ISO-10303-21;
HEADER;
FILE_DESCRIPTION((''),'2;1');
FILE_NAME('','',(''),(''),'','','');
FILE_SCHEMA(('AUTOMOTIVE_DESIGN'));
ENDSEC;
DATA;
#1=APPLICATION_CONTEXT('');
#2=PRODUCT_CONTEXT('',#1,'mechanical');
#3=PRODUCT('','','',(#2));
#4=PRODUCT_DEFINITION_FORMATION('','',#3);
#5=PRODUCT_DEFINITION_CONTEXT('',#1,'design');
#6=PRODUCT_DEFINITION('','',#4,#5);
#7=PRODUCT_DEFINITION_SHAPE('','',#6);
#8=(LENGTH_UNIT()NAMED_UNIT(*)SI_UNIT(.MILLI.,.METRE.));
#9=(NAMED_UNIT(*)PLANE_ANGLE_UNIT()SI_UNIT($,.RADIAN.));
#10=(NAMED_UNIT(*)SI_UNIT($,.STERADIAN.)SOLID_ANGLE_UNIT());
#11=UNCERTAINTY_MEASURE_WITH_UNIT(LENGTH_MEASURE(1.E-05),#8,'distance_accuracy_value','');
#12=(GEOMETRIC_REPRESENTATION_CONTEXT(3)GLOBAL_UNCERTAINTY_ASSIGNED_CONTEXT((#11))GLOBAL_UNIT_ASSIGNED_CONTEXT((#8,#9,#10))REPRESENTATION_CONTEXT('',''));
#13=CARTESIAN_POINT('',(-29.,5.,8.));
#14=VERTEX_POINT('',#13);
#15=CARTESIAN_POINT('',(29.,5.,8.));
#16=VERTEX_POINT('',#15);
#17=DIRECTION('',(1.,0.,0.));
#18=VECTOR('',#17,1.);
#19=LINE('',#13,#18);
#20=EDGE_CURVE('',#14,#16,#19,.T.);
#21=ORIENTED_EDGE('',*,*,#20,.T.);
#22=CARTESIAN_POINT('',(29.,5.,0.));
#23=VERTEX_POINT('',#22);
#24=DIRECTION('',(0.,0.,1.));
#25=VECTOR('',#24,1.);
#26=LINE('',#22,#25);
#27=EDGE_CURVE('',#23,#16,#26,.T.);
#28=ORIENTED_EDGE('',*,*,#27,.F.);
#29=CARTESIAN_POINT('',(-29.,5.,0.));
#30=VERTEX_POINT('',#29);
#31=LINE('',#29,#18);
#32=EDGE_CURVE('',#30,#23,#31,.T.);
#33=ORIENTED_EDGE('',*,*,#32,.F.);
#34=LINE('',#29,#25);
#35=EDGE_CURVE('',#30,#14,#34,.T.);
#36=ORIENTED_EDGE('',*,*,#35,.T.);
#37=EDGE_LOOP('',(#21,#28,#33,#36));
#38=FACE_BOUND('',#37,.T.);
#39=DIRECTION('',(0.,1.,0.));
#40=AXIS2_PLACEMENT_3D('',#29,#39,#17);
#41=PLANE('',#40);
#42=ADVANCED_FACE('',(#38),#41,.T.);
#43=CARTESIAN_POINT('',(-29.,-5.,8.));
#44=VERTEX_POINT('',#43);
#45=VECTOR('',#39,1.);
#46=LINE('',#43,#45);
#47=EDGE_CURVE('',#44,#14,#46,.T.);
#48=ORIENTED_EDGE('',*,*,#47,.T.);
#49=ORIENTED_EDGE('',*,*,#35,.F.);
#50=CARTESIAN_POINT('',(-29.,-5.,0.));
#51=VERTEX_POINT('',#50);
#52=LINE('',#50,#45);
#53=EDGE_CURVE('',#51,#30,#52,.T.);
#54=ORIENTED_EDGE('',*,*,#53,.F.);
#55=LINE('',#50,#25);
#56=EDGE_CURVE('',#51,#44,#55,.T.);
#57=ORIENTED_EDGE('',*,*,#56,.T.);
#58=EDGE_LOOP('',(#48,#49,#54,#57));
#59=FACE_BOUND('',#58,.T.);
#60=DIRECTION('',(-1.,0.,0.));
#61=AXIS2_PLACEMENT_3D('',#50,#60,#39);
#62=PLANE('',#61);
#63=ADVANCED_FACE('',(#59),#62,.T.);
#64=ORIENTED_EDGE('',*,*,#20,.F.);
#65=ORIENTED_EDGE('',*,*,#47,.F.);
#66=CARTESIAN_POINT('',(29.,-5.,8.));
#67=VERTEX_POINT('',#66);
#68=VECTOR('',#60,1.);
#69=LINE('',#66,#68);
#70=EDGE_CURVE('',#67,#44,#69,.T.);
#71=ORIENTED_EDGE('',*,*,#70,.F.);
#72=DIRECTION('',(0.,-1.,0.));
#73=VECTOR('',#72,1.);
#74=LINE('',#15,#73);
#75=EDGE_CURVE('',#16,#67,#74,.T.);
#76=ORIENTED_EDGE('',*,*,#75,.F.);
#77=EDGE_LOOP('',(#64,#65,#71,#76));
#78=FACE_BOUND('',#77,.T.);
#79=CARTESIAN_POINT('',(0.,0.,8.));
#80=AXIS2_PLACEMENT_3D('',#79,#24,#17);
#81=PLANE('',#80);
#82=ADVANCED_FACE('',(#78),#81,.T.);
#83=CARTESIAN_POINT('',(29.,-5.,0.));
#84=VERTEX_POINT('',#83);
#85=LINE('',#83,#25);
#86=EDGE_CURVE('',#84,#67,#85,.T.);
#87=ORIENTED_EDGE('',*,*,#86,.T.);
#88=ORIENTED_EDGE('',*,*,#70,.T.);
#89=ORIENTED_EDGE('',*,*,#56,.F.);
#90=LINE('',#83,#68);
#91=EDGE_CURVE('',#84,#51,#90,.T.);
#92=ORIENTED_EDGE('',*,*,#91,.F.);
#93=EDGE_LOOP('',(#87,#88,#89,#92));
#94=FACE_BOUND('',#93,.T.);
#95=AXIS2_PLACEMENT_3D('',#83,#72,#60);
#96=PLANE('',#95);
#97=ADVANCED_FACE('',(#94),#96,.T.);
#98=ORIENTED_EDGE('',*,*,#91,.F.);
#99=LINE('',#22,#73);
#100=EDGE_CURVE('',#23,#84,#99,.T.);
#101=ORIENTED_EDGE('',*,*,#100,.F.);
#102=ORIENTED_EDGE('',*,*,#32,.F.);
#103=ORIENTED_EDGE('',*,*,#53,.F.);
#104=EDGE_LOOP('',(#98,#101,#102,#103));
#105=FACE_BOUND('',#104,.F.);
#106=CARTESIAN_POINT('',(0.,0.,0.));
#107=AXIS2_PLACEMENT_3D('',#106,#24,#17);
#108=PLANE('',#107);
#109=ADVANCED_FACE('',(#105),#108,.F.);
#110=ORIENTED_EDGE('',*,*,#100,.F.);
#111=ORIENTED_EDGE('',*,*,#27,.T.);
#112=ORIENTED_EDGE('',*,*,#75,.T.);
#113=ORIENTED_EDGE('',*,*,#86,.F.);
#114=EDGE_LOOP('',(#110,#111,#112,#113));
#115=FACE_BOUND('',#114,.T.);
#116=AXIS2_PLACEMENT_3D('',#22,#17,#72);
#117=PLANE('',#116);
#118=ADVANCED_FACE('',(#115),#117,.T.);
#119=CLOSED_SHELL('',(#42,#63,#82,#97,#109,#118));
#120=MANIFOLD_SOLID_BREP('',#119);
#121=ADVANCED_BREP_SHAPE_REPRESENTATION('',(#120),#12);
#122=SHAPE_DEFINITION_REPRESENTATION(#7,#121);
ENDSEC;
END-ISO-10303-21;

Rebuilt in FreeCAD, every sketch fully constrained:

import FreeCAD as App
import Part
import Sketcher

V = App.Vector
Q = App.Units.Quantity


def add_polygon(sketch, points):
    """Adds a closed chain of lines whose ends are joined by coincident constraints."""
    first, n = sketch.GeometryCount, len(points)
    for a, b in zip(points, points[1:] + points[:1]):
        sketch.addGeometry(Part.LineSegment(App.Vector(*a, 0), App.Vector(*b, 0)), False)
    for i in range(n):
        sketch.addConstraint(Sketcher.Constraint("Coincident", first + i, 2, first + (i + 1) % n, 1))

doc = App.newDocument("Part")
params = doc.addObject("Spreadsheet::Sheet", "Params")
for row, (alias, value) in enumerate([
    ("sketch1_width", "58 mm"),
    ("sketch1_height", "10 mm"),
    ("pad1_length", "8 mm"),
], start=1):
    params.set(f"A{row}", alias)
    params.set(f"B{row}", "=" + value)
    params.setAlias(f"B{row}", alias)

body = doc.addObject("PartDesign::Body", "Body")

sketch1 = body.newObject("Sketcher::SketchObject", "Sketch")
sketch1.AttachmentSupport = (doc.getObject("XY_Plane"), [""])
sketch1.MapMode = "FlatFace"
add_polygon(sketch1, [(-29, -5), (29, -5), (29, 5), (-29, 5)])
sketch1.addConstraint([
    Sketcher.Constraint("Horizontal", 0),
    Sketcher.Constraint("Vertical", 1),
    Sketcher.Constraint("Horizontal", 2),
    Sketcher.Constraint("Vertical", 3),
    Sketcher.Constraint("Symmetric", 0, 2, 2, 2, -1, 1),
    Sketcher.Constraint("DistanceX", 0, 1, 0, 2, Q("58 mm")),
    Sketcher.Constraint("DistanceY", 1, 1, 1, 2, Q("10 mm")),
])
sketch1.setExpression("Constraints[9]", "Params.sketch1_width")
sketch1.setExpression("Constraints[10]", "Params.sketch1_height")
pad1 = body.newObject("PartDesign::Pad", "Pad")
pad1.Profile = sketch1
pad1.setExpression("Length", "Params.pad1_length")

doc.recompute()
